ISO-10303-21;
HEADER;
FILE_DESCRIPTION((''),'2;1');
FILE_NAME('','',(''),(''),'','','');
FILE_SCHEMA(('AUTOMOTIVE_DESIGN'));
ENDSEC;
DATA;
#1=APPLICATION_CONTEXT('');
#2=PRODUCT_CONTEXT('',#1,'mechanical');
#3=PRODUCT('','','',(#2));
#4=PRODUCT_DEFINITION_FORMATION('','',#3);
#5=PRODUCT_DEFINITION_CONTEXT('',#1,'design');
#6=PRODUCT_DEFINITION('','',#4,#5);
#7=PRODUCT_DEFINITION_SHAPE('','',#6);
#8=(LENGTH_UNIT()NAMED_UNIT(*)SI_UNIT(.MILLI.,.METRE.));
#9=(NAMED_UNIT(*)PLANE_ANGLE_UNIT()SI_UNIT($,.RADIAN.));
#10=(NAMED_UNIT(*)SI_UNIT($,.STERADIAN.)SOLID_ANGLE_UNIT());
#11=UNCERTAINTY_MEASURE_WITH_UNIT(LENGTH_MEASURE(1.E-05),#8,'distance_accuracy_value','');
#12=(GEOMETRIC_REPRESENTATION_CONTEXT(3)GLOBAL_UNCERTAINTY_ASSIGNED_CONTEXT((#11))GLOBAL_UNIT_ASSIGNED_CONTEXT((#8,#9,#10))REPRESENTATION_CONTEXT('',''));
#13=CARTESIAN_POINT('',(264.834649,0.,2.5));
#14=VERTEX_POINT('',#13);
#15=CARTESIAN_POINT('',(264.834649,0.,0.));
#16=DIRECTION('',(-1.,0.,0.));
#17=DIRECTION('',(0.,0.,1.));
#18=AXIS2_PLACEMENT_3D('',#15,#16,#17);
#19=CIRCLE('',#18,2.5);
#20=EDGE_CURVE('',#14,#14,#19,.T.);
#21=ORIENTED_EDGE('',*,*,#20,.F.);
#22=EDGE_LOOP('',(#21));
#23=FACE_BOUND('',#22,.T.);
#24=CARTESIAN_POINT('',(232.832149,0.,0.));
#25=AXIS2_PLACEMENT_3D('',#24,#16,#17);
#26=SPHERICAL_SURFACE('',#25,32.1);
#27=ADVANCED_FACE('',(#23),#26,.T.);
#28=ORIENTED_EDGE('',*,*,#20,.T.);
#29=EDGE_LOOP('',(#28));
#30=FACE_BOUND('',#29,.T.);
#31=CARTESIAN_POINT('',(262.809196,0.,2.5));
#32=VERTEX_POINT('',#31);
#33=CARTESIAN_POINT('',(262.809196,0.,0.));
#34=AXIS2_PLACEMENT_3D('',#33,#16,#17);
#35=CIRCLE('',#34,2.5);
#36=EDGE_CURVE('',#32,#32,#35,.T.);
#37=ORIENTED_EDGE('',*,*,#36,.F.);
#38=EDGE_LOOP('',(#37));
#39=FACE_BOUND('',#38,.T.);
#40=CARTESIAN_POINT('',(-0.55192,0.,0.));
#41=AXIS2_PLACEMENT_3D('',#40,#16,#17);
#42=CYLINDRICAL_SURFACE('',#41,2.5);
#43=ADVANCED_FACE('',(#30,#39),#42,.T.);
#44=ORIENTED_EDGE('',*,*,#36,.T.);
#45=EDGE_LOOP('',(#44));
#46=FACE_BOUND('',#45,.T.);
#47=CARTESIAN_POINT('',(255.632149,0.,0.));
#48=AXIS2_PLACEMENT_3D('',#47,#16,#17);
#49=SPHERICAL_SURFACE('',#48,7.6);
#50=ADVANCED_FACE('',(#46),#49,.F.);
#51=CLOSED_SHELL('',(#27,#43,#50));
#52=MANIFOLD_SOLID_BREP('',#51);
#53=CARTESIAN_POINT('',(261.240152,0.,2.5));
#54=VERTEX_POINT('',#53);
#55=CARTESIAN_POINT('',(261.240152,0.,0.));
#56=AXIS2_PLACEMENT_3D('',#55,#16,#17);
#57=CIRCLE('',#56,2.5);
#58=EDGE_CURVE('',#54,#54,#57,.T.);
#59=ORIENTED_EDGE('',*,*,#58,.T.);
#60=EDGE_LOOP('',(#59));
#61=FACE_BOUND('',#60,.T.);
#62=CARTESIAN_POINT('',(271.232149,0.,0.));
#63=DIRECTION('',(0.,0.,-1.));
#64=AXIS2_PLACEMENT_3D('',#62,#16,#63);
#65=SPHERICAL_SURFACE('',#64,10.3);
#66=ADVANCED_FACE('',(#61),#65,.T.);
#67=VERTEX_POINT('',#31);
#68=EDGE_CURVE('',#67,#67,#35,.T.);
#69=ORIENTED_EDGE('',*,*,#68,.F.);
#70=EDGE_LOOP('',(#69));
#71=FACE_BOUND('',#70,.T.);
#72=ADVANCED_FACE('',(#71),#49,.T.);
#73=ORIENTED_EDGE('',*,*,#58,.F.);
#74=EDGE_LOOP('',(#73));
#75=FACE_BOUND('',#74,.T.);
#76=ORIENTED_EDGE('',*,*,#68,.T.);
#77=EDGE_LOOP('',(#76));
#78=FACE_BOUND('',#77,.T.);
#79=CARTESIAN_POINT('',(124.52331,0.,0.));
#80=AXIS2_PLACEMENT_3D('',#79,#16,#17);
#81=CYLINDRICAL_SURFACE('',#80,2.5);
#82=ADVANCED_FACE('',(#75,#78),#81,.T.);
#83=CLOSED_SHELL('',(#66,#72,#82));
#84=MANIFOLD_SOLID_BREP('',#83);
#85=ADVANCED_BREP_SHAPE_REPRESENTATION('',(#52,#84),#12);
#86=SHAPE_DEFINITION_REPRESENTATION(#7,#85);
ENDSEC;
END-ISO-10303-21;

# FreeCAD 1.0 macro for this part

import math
import FreeCAD as App
import Part
import Sketcher
from FreeCAD import Vector

doc = App.newDocument("Part")
body = doc.addObject("PartDesign::Body", "Body")

# Sketch on XZ plane
sketch1 = body.newObject("Sketcher::SketchObject", "Sketch")
sketch1.AttachmentSupport = (doc.getObject("XZ_Plane"), [""])
sketch1.MapMode = "FlatFace"
sketch1.addGeometry([
    Part.ArcOfCircle(Part.Circle(Vector(271.232149, 0, 0), Vector(0, 0, 1), 10.3), math.radians(180), math.radians(194.047041)),
    Part.LineSegment(Vector(260.932149, 0, 0), Vector(263.232149, 0, 0)),
    Part.ArcOfCircle(Part.Circle(Vector(255.632149, 0, 0), Vector(0, 0, 1), 7.6), math.radians(-19.204898), math.radians(0)),
    Part.LineSegment(Vector(262.809196, -2.5, 0), Vector(261.240152, -2.5, 0)),
], False)
sketch1.addConstraint([
    Sketcher.Constraint("Coincident", 0, 1, 1, 1),
    Sketcher.Constraint("Coincident", 1, 2, 2, 2),
    Sketcher.Constraint("Coincident", 2, 1, 3, 1),
    Sketcher.Constraint("Coincident", 3, 2, 0, 2),
    Sketcher.Constraint("Horizontal", 1),
    Sketcher.Constraint("Horizontal", 3),
    Sketcher.Constraint("PointOnObject", 0, 3, -1),
    Sketcher.Constraint("PointOnObject", 2, 3, -1),
    Sketcher.Constraint("PointOnObject", 0, 1, -1),
    Sketcher.Constraint("Radius", 0, 10.3),
    Sketcher.Constraint("Radius", 2, 7.6),
    Sketcher.Constraint("DistanceX", 1, 1, 1, 2, 2.3),
    Sketcher.Constraint("DistanceY", 2, 1, -1, 1, 2.5),
    Sketcher.Constraint("DistanceX", -1, 1, 0, 3, 271.232149),
])
revolution = body.newObject("PartDesign::Revolution", "Revolution")
revolution.Profile = sketch1
revolution.ReferenceAxis = (sketch1, ["H_Axis"])
revolution.Angle = 360
body2 = doc.addObject("PartDesign::Body", "Body001")

# Sketch on XZ plane
sketch2 = body2.newObject("Sketcher::SketchObject", "Sketch001")
sketch2.AttachmentSupport = (doc.getObject("XZ_Plane001"), [""])
sketch2.MapMode = "FlatFace"
sketch2.addGeometry([
    Part.LineSegment(Vector(264.834649, -2.5, 0), Vector(262.809196, -2.5, 0)),
    Part.ArcOfCircle(Part.Circle(Vector(255.632149, 0, 0), Vector(0, 0, 1), 7.6), math.radians(-19.204898), math.radians(0)),
    Part.LineSegment(Vector(263.232149, 0, 0), Vector(264.932149, 0, 0)),
    Part.ArcOfCircle(Part.Circle(Vector(232.832149, 0, 0), Vector(0, 0, 1), 32.1), math.radians(-4.466812), math.radians(0)),
], False)
sketch2.addConstraint([
    Sketcher.Constraint("Coincident", 0, 2, 1, 1),
    Sketcher.Constraint("Coincident", 1, 2, 2, 1),
    Sketcher.Constraint("Coincident", 2, 2, 3, 2),
    Sketcher.Constraint("Coincident", 3, 1, 0, 1),
    Sketcher.Constraint("Horizontal", 0),
    Sketcher.Constraint("Horizontal", 2),
    Sketcher.Constraint("PointOnObject", 1, 3, -1),
    Sketcher.Constraint("PointOnObject", 3, 3, -1),
    Sketcher.Constraint("PointOnObject", 1, 2, -1),
    Sketcher.Constraint("Radius", 1, 7.6),
    Sketcher.Constraint("Radius", 3, 32.1),
    Sketcher.Constraint("DistanceX", 2, 1, 2, 2, 1.7),
    Sketcher.Constraint("DistanceY", 0, 2, -1, 1, 2.5),
    Sketcher.Constraint("DistanceX", -1, 1, 1, 3, 255.632149),
])
revolution2 = body2.newObject("PartDesign::Revolution", "Revolution001")
revolution2.Profile = sketch2
revolution2.ReferenceAxis = (sketch2, ["H_Axis"])
revolution2.Angle = 360

doc.recompute()
